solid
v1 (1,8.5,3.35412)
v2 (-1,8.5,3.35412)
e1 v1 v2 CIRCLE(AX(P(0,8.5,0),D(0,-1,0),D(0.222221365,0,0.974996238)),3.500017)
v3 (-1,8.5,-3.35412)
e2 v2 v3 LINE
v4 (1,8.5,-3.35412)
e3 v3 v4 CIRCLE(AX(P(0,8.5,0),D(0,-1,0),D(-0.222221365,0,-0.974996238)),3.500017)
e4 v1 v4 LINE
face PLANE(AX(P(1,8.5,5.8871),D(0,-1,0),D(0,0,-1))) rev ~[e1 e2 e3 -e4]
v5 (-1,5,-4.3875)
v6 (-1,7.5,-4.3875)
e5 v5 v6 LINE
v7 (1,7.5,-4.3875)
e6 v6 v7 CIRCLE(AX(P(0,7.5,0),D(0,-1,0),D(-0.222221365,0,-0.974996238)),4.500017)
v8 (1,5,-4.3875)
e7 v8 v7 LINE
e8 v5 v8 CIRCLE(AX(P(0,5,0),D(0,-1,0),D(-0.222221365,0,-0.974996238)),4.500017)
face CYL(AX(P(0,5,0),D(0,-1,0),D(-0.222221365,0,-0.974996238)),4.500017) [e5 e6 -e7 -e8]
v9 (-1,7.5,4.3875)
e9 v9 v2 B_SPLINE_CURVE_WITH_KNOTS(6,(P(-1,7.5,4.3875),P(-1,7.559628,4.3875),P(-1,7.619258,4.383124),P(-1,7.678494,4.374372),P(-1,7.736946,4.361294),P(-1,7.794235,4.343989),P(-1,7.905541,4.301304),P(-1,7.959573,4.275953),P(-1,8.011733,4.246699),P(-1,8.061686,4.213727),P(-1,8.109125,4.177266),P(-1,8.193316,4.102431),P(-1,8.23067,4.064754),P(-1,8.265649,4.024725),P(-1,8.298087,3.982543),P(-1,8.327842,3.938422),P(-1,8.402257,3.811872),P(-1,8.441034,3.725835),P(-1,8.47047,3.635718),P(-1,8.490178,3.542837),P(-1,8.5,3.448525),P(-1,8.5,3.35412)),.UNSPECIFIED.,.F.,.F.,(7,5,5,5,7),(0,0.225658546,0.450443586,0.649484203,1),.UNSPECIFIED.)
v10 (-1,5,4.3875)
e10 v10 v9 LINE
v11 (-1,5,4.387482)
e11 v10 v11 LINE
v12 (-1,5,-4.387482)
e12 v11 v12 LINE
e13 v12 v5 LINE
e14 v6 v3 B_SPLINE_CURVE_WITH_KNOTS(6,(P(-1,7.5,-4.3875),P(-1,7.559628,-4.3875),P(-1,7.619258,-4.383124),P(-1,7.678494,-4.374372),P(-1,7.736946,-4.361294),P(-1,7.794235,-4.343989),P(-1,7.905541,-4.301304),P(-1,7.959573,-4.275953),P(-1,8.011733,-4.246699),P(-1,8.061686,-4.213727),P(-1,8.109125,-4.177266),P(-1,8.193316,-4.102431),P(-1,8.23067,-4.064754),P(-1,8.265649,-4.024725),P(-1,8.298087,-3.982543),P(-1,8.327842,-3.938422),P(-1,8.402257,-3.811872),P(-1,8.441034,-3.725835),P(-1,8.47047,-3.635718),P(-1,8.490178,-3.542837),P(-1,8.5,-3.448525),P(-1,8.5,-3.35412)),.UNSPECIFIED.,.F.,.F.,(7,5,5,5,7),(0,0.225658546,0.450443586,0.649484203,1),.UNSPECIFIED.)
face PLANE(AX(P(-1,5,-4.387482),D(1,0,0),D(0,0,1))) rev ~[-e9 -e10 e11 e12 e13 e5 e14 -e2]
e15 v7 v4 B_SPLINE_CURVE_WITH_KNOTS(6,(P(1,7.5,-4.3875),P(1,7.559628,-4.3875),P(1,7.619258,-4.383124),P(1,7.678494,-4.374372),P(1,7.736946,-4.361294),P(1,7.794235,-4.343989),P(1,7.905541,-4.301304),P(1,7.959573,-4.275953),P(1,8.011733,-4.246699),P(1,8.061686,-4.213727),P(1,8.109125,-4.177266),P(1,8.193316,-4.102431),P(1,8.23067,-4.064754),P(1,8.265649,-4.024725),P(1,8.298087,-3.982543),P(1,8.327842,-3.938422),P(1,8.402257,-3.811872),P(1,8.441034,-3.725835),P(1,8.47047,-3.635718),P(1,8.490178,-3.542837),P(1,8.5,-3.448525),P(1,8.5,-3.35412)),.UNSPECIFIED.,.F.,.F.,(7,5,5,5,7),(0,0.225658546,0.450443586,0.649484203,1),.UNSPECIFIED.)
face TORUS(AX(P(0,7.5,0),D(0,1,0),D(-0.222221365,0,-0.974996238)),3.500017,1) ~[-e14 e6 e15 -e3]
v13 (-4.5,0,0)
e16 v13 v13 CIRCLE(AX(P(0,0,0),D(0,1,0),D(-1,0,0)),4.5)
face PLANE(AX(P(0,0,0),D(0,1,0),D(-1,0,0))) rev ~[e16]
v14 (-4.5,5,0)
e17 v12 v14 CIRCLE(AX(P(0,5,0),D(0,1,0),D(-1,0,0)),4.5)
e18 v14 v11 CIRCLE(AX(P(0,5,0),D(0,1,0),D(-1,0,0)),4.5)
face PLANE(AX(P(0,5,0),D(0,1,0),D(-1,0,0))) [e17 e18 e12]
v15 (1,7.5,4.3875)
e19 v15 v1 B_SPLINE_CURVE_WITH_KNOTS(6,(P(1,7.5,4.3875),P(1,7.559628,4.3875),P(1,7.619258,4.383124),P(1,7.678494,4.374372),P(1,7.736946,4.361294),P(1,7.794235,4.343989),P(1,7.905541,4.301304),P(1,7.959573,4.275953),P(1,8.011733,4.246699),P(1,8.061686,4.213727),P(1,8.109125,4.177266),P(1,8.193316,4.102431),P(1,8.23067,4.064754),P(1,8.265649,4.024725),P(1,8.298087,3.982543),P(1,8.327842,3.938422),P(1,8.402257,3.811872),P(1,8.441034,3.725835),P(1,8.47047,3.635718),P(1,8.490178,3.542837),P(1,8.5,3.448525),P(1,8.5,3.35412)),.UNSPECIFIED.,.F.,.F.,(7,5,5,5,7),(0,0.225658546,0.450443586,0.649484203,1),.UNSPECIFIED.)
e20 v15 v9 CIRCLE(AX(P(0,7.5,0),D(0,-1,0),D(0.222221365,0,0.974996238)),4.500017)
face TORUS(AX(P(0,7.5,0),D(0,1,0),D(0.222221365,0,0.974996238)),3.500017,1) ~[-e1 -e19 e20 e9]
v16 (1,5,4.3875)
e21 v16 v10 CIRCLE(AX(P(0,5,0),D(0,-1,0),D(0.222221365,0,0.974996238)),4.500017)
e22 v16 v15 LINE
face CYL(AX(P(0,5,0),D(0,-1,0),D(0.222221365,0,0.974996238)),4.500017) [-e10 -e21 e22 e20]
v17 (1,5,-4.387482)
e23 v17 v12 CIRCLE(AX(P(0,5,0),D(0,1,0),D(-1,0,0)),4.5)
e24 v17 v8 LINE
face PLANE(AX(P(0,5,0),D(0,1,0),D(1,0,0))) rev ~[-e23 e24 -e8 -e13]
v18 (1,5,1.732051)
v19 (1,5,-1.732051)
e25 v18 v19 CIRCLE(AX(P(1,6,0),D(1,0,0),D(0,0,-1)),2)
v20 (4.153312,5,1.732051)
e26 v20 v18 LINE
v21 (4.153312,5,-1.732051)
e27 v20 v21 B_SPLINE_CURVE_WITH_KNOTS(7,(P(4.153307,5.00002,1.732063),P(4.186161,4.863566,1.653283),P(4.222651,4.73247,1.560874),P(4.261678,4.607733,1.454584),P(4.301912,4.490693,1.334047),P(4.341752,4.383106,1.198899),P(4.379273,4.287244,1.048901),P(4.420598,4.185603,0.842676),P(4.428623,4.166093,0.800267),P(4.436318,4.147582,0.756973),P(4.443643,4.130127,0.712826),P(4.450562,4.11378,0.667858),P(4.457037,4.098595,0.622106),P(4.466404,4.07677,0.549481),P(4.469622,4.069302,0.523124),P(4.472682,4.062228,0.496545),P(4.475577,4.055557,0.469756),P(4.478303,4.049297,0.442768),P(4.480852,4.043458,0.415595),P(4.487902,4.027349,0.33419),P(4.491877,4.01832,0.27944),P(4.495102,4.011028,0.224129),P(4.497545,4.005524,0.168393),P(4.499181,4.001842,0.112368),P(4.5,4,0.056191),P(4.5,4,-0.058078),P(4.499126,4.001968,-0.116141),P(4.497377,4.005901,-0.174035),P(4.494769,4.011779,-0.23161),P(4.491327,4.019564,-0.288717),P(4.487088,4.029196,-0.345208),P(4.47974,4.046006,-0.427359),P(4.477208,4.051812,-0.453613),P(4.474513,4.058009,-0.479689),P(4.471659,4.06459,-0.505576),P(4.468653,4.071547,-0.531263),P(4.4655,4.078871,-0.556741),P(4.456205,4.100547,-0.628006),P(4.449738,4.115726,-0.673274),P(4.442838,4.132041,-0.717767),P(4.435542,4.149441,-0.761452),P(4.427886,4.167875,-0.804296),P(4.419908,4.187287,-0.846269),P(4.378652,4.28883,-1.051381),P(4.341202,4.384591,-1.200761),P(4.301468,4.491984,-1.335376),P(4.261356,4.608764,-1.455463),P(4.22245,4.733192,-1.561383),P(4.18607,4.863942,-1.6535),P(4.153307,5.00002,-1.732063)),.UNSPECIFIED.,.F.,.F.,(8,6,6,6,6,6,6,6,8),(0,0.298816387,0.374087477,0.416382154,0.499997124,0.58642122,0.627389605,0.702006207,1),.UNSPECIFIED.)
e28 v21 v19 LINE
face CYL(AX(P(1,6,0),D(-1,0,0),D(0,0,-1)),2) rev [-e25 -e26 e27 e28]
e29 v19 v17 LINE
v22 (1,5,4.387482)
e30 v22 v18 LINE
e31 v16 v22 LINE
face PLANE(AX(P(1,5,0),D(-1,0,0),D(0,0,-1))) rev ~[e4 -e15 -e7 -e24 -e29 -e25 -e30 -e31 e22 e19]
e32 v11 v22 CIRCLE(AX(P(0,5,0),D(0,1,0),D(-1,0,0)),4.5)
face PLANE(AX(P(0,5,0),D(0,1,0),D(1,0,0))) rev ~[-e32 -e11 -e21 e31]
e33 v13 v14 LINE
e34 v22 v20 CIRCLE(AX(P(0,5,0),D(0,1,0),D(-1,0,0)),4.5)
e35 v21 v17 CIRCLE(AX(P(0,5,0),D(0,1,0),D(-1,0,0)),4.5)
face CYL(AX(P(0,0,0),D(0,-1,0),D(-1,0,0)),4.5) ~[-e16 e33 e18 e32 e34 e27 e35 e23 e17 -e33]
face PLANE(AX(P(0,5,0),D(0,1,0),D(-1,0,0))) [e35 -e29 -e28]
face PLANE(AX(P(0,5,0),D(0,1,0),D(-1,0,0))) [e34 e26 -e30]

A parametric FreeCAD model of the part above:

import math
import FreeCAD as App
import Part
import Sketcher

V = App.Vector


def edges_at(feature, points):
    """Names of the edges that pass closest to the given points."""
    edges = feature.Shape.Edges
    near = lambda p: min(range(len(edges)), key=lambda i: edges[i].distToShape(Part.Vertex(*p))[0])
    return sorted({f"Edge{near(p) + 1}" for p in points})


def add_polygon(sketch, points):
    """Adds a closed chain of lines whose ends are joined by coincident constraints."""
    first, n = sketch.GeometryCount, len(points)
    for a, b in zip(points, points[1:] + points[:1]):
        sketch.addGeometry(Part.LineSegment(App.Vector(*a, 0), App.Vector(*b, 0)), False)
    for i in range(n):
        sketch.addConstraint(Sketcher.Constraint("Coincident", first + i, 2, first + (i + 1) % n, 1))

doc = App.newDocument("Part")
body = doc.addObject("PartDesign::Body", "Body")

sketch1 = body.newObject("Sketcher::SketchObject", "Sketch")
sketch1.AttachmentSupport = (doc.getObject("XZ_Plane"), [""])
sketch1.MapMode = "FlatFace"
sketch1.addGeometry(Part.Circle(V(0, 0, 0), V(0, 0, 1), 4.5), False)
sketch1.addConstraint(Sketcher.Constraint("Coincident", 0, 3, -1, 1))
sketch1.addConstraint(Sketcher.Constraint("Diameter", 0, 9.0))
pad1 = body.newObject("PartDesign::Pad", "Pad")
pad1.Profile = sketch1
pad1.Length = 5
pad1.Reversed = True

sketch2 = body.newObject("Sketcher::SketchObject", "Sketch001")
sketch2.AttachmentSupport = (doc.getObject("XZ_Plane"), [""])
sketch2.MapMode = "FlatFace"
sketch2.AttachmentOffset = App.Placement(V(0, 0, -5), App.Rotation())
add_polygon(sketch2, [(1, -8.6), (-1, -8.6), (-1, 7.5), (1, 7.5)])
sketch2.addConstraint(Sketcher.Constraint("Horizontal", 0))
sketch2.addConstraint(Sketcher.Constraint("Vertical", 1))
sketch2.addConstraint(Sketcher.Constraint("Horizontal", 2))
sketch2.addConstraint(Sketcher.Constraint("Vertical", 3))
sketch2.addConstraint(Sketcher.Constraint("DistanceX", 0, 2, 0, 1, 2.0))
sketch2.addConstraint(Sketcher.Constraint("DistanceX", 0, 2, -1, 1, 1.0))
sketch2.addConstraint(Sketcher.Constraint("DistanceY", 1, 1, 1, 2, 16.0674))
sketch2.addConstraint(Sketcher.Constraint("DistanceY", 0, 2, -1, 1, 8.5977))
pad2 = body.newObject("PartDesign::Pad", "Pad001")
pad2.Profile = sketch2
pad2.Length = 5
pad2.Reversed = True

sketch3 = body.newObject("Sketcher::SketchObject", "Sketch002")
sketch3.AttachmentSupport = (doc.getObject("XZ_Plane"), [""])
sketch3.MapMode = "FlatFace"
sketch3.AttachmentOffset = App.Placement(V(0, 0, -5), App.Rotation())
sketch3.addGeometry(Part.ArcOfCircle(Part.Circle(V(0, 0, 0), V(0, 0, 1), 4.5), math.radians(77), math.radians(103)), False)
sketch3.addGeometry(Part.LineSegment(V(1, 4.4, 0), V(1, 7.5, 0)), False)
sketch3.addGeometry(Part.LineSegment(V(1, 7.5, 0), V(-1, 7.5, 0)), False)
sketch3.addGeometry(Part.LineSegment(V(-1, 7.5, 0), V(-1, 4.4, 0)), False)
sketch3.addGeometry(Part.ArcOfCircle(Part.Circle(V(0, 0, 0), V(0, 0, 1), 4.5), math.radians(-103), math.radians(-77)), False)
sketch3.addGeometry(Part.LineSegment(V(-1, -4.4, 0), V(-1, -8.6, 0)), False)
sketch3.addGeometry(Part.LineSegment(V(-1, -8.6, 0), V(1, -8.6, 0)), False)
sketch3.addGeometry(Part.LineSegment(V(1, -8.6, 0), V(1, -4.4, 0)), False)
sketch3.addConstraint(Sketcher.Constraint("Coincident", 0, 1, 1, 1))
sketch3.addConstraint(Sketcher.Constraint("Coincident", 1, 2, 2, 1))
sketch3.addConstraint(Sketcher.Constraint("Coincident", 2, 2, 3, 1))
sketch3.addConstraint(Sketcher.Constraint("Coincident", 3, 2, 0, 2))
sketch3.addConstraint(Sketcher.Constraint("Coincident", 4, 1, 5, 1))
sketch3.addConstraint(Sketcher.Constraint("Coincident", 5, 2, 6, 1))
sketch3.addConstraint(Sketcher.Constraint("Coincident", 6, 2, 7, 1))
sketch3.addConstraint(Sketcher.Constraint("Coincident", 7, 2, 4, 2))
sketch3.addConstraint(Sketcher.Constraint("Vertical", 1))
sketch3.addConstraint(Sketcher.Constraint("Horizontal", 2))
sketch3.addConstraint(Sketcher.Constraint("Vertical", 3))
sketch3.addConstraint(Sketcher.Constraint("Vertical", 5))
sketch3.addConstraint(Sketcher.Constraint("Horizontal", 6))
sketch3.addConstraint(Sketcher.Constraint("Vertical", 7))
sketch3.addConstraint(Sketcher.Constraint("Coincident", 0, 3, -1, 1))
sketch3.addConstraint(Sketcher.Constraint("Coincident", 4, 3, -1, 1))
sketch3.addConstraint(Sketcher.Constraint("Equal", 0, 4))
sketch3.addConstraint(Sketcher.Constraint("Horizontal", 0, 1, 3, 2))
sketch3.addConstraint(Sketcher.Constraint("Horizontal", 4, 1, 7, 2))
sketch3.addConstraint(Sketcher.Constraint("Vertical", 3, 2, 4, 1))
sketch3.addConstraint(Sketcher.Constraint("Radius", 0, 4.5))
sketch3.addConstraint(Sketcher.Constraint("DistanceX", 2, 2, 2, 1, 2.0))
sketch3.addConstraint(Sketcher.Constraint("DistanceY", 1, 1, 1, 2, 3.0822))
sketch3.addConstraint(Sketcher.Constraint("DistanceY", 5, 2, 5, 1, 4.2102))
pocket1 = body.newObject("PartDesign::Pocket", "Pocket")
pocket1.Profile = sketch3
pocket1.Length = 5

sketch4 = body.newObject("Sketcher::SketchObject", "Sketch003")
sketch4.AttachmentSupport = (doc.getObject("YZ_Plane"), [""])
sketch4.MapMode = "FlatFace"
sketch4.AttachmentOffset = App.Placement(V(0, 0, 1), App.Rotation())
sketch4.addGeometry(Part.Circle(V(6, 0, 0), V(0, 0, 1), 2), False)
sketch4.addConstraint(Sketcher.Constraint("PointOnObject", 0, 3, -1))
sketch4.addConstraint(Sketcher.Constraint("Diameter", 0, 4.0))
sketch4.addConstraint(Sketcher.Constraint("DistanceX", -1, 1, 0, 3, 6.0))
pocket2 = body.newObject("PartDesign::Pocket", "Pocket001")
pocket2.Profile = sketch4
pocket2.Length = 25.4
pocket2.Reversed = True

sketch5 = body.newObject("Sketcher::SketchObject", "Sketch004")
sketch5.AttachmentSupport = (doc.getObject("YZ_Plane"), [""])
sketch5.MapMode = "FlatFace"
sketch5.AttachmentOffset = App.Placement(V(0, 0, 1), App.Rotation())
add_polygon(sketch5, [(10, -5.5), (10, 5.9), (8.5, 5.9), (8.5, -5.5)])
sketch5.addConstraint(Sketcher.Constraint("Vertical", 0))
sketch5.addConstraint(Sketcher.Constraint("Horizontal", 1))
sketch5.addConstraint(Sketcher.Constraint("Vertical", 2))
sketch5.addConstraint(Sketcher.Constraint("Horizontal", 3))
sketch5.addConstraint(Sketcher.Constraint("DistanceX", 1, 2, 1, 1, 1.5))
sketch5.addConstraint(Sketcher.Constraint("DistanceX", -1, 1, 0, 2, 10.0))
sketch5.addConstraint(Sketcher.Constraint("DistanceY", 0, 1, 0, 2, 11.393))
sketch5.addConstraint(Sketcher.Constraint("DistanceY", -1, 1, 0, 2, 5.887))
pocket3 = body.newObject("PartDesign::Pocket", "Pocket002")
pocket3.Profile = sketch5
pocket3.Length = 25.4
doc.recompute()

fillet = body.newObject("PartDesign::Fillet", "Fillet")
fillet.Base = (pocket3, edges_at(pocket3, [(0, 8.5, 4.5), (0, 8.5, -4.5)]))
fillet.Radius = 1

doc.recompute()
